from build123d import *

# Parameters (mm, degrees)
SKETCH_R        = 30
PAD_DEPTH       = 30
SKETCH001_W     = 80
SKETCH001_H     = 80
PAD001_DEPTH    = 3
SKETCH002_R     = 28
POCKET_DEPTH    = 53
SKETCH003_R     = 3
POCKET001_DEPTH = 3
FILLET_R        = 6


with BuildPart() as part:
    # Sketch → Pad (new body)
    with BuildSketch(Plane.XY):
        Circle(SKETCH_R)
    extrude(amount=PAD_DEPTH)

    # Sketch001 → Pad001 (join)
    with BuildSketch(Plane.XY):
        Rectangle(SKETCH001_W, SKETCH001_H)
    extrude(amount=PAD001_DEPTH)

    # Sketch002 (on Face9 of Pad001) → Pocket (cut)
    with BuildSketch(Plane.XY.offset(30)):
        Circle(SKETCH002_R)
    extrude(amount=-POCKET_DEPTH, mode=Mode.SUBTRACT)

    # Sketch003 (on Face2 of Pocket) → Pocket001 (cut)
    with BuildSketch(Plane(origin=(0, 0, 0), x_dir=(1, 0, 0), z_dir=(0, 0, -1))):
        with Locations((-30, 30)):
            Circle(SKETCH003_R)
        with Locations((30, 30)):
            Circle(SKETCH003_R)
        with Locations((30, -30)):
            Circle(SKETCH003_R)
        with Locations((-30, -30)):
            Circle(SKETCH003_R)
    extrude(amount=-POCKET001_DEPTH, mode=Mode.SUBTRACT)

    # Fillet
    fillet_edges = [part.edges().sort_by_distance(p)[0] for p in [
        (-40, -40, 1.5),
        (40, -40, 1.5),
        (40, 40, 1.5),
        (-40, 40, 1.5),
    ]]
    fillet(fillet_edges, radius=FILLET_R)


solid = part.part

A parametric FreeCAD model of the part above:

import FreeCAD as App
import Part
import Sketcher
from FreeCAD import Vector
Q = App.Units.Quantity


def edges_at(feature, points):
    """Names of the edges that pass closest to the given points."""
    edges = feature.Shape.Edges
    near = lambda p: min(range(len(edges)), key=lambda i: edges[i].distToShape(Part.Vertex(*p))[0])
    return sorted({f"Edge{near(p) + 1}" for p in points})


def add_polygon(sketch, points):
    """Adds a closed chain of lines whose ends are joined by coincident constraints."""
    first, n = sketch.GeometryCount, len(points)
    for a, b in zip(points, points[1:] + points[:1]):
        sketch.addGeometry(Part.LineSegment(App.Vector(*a, 0), App.Vector(*b, 0)), False)
    for i in range(n):
        sketch.addConstraint(Sketcher.Constraint("Coincident", first + i, 2, first + (i + 1) % n, 1))

doc = App.newDocument("Part")
params = doc.addObject("Spreadsheet::Sheet", "Params")
for row, (alias, value) in enumerate([
    ("sketch1_diameter", "60 mm"),
    ("pad1_length", "30 mm"),
    ("sketch2_width", "80 mm"),
    ("pad2_length", "3 mm"),
    ("sketch3_diameter", "56 mm"),
    ("pocket1_length", "53 mm"),
    ("sketch4_diameter", "6 mm"),
    ("pocket2_length", "3 mm"),
    ("fillet_radius", "6 mm"),
], start=1):
    params.set(f"A{row}", alias)
    params.set(f"B{row}", "=" + value)
    params.setAlias(f"B{row}", alias)

body = doc.addObject("PartDesign::Body", "Body")

# Sketch on XY plane
sketch1 = body.newObject("Sketcher::SketchObject", "Sketch")
sketch1.AttachmentSupport = (doc.getObject("XY_Plane"), [""])
sketch1.MapMode = "FlatFace"
sketch1.addGeometry(Part.Circle(Vector(0, 0, 0), Vector(0, 0, 1), 30), False)
sketch1.addConstraint(Sketcher.Constraint("Coincident", 0, 3, -1, 1))
sketch1.addConstraint(Sketcher.Constraint("Diameter", 0, Q("60 mm")))
sketch1.setExpression("Constraints[1]", "Params.sketch1_diameter")
pad1 = body.newObject("PartDesign::Pad", "Pad")
pad1.Profile = sketch1
pad1.setExpression("Length", "Params.pad1_length")

# Sketch on XY plane
sketch2 = body.newObject("Sketcher::SketchObject", "Sketch001")
sketch2.AttachmentSupport = (doc.getObject("XY_Plane"), [""])
sketch2.MapMode = "FlatFace"
add_polygon(sketch2, [(-40, 40), (-40, -40), (40, -40), (40, 40)])  # lines 0-3
sketch2.addConstraint(Sketcher.Constraint("Vertical", 0))
sketch2.addConstraint(Sketcher.Constraint("Horizontal", 1))
sketch2.addConstraint(Sketcher.Constraint("Vertical", 2))
sketch2.addConstraint(Sketcher.Constraint("Horizontal", 3))
sketch2.addConstraint(Sketcher.Constraint("Symmetric", 0, 2, 2, 2, -1, 1))
sketch2.addConstraint(Sketcher.Constraint("Equal", 3, 0))
sketch2.addConstraint(Sketcher.Constraint("DistanceX", 1, 1, 1, 2, Q("80 mm")))
sketch2.setExpression("Constraints[10]", "Params.sketch2_width")
pad2 = body.newObject("PartDesign::Pad", "Pad001")
pad2.Profile = sketch2
pad2.setExpression("Length", "Params.pad2_length")

# Sketch on XY plane
sketch3 = body.newObject("Sketcher::SketchObject", "Sketch002")
sketch3.AttachmentSupport = (doc.getObject("XY_Plane"), [""])
sketch3.MapMode = "FlatFace"
sketch3.AttachmentOffset = App.Placement(Vector(0, 0, 30), App.Rotation())
sketch3.addGeometry(Part.Circle(Vector(0, 0, 0), Vector(0, 0, 1), 28), False)
sketch3.addConstraint(Sketcher.Constraint("Coincident", 0, 3, -1, 1))
sketch3.addConstraint(Sketcher.Constraint("Diameter", 0, Q("56 mm")))
sketch3.setExpression("Constraints[1]", "Params.sketch3_diameter")
pocket1 = body.newObject("PartDesign::Pocket", "Pocket")
pocket1.Profile = sketch3
pocket1.setExpression("Length", "Params.pocket1_length")

# Sketch on XY plane
sketch4 = body.newObject("Sketcher::SketchObject", "Sketch003")
sketch4.AttachmentSupport = (doc.getObject("XY_Plane"), [""])
sketch4.MapMode = "FlatFace"
sketch4.addGeometry(Part.Circle(Vector(-30, -30, 0), Vector(0, 0, 1), 3), False)
sketch4.addGeometry(Part.Circle(Vector(30, -30, 0), Vector(0, 0, 1), 3), False)
sketch4.addGeometry(Part.Circle(Vector(30, 30, 0), Vector(0, 0, 1), 3), False)
sketch4.addGeometry(Part.Circle(Vector(-30, 30, 0), Vector(0, 0, 1), 3), False)
sketch4.addConstraint(Sketcher.Constraint("Equal", 0, 1))
sketch4.addConstraint(Sketcher.Constraint("Equal", 1, 2))
sketch4.addConstraint(Sketcher.Constraint("Equal", 2, 3))
sketch4.addConstraint(Sketcher.Constraint("Symmetric", 0, 3, 2, 3, -1, 1))
sketch4.addConstraint(Sketcher.Constraint("Symmetric", 1, 3, 3, 3, -1, 1))
sketch4.addConstraint(Sketcher.Constraint("Symmetric", 0, 3, 1, 3, -2))
sketch4.addConstraint(Sketcher.Constraint("Diameter", 0, Q("6 mm")))
sketch4.addConstraint(Sketcher.Constraint("DistanceX", 0, 3, -1, 1, Q("30 mm")))
sketch4.addConstraint(Sketcher.Constraint("DistanceY", 0, 3, -1, 1, Q("30 mm")))
sketch4.setExpression("Constraints[6]", "Params.sketch4_diameter")
pocket2 = body.newObject("PartDesign::Pocket", "Pocket001")
pocket2.Profile = sketch4
pocket2.setExpression("Length", "Params.pocket2_length")
pocket2.Reversed = True
doc.recompute()

fillet = body.newObject("PartDesign::Fillet", "Fillet")
fillet.Base = (pocket2, edges_at(pocket2, [
    (-40, -40, 1.5),
    (40, -40, 1.5),
    (40, 40, 1.5),
    (-40, 40, 1.5),
]))
fillet.setExpression("Radius", "Params.fillet_radius")

doc.recompute()
